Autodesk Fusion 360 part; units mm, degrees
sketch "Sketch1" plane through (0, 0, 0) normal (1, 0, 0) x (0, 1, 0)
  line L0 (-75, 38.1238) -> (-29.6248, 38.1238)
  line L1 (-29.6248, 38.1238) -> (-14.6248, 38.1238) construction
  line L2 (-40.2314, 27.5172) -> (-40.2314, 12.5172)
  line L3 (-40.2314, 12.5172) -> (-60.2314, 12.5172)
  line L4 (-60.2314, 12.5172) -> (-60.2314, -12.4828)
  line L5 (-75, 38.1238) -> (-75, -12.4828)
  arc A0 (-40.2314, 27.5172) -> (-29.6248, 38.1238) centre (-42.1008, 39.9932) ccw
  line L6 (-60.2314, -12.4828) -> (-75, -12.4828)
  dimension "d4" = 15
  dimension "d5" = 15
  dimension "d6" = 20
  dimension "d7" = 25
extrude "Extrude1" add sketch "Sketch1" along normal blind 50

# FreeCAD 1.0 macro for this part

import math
import FreeCAD as App
import Part
import Sketcher
Q = App.Units.Quantity

doc = App.newDocument("Part")
body = doc.addObject("PartDesign::Body", "Body")

# Sketch on YZ plane
sketch1 = body.newObject("Sketcher::SketchObject", "Sketch")
sketch1.AttachmentSupport = (doc.getObject("YZ_Plane"), [""])
sketch1.MapMode = "FlatFace"
sketch1.addGeometry(Part.LineSegment(App.Vector(-30, 38, 0), App.Vector(-75, 38, 0)), False)
sketch1.addGeometry(Part.LineSegment(App.Vector(-75, 38, 0), App.Vector(-75, -12, 0)), False)
sketch1.addGeometry(Part.LineSegment(App.Vector(-75, -12, 0), App.Vector(-60, -12, 0)), False)
sketch1.addGeometry(Part.LineSegment(App.Vector(-60, -12, 0), App.Vector(-60, 13, 0)), False)
sketch1.addGeometry(Part.LineSegment(App.Vector(-60, 13, 0), App.Vector(-40, 13, 0)), False)
sketch1.addGeometry(Part.LineSegment(App.Vector(-40, 13, 0), App.Vector(-40, 28, 0)), False)
sketch1.addGeometry(Part.ArcOfCircle(Part.Circle(App.Vector(-42, 40, 0), App.Vector(0, 0, 1), 13), math.radians(-81), math.radians(-9)), False)
sketch1.addConstraint(Sketcher.Constraint("Coincident", 0, 2, 1, 1))
sketch1.addConstraint(Sketcher.Constraint("Coincident", 1, 2, 2, 1))
sketch1.addConstraint(Sketcher.Constraint("Coincident", 2, 2, 3, 1))
sketch1.addConstraint(Sketcher.Constraint("Coincident", 3, 2, 4, 1))
sketch1.addConstraint(Sketcher.Constraint("Coincident", 4, 2, 5, 1))
sketch1.addConstraint(Sketcher.Constraint("Coincident", 5, 2, 6, 1))
sketch1.addConstraint(Sketcher.Constraint("Coincident", 6, 2, 0, 1))
sketch1.addConstraint(Sketcher.Constraint("Horizontal", 0))
sketch1.addConstraint(Sketcher.Constraint("Vertical", 1))
sketch1.addConstraint(Sketcher.Constraint("Horizontal", 2))
sketch1.addConstraint(Sketcher.Constraint("Vertical", 3))
sketch1.addConstraint(Sketcher.Constraint("Horizontal", 4))
sketch1.addConstraint(Sketcher.Constraint("Vertical", 5))
sketch1.addConstraint(Sketcher.Constraint("DistanceX", 4, 1, 4, 2, Q("20 mm")))
sketch1.addConstraint(Sketcher.Constraint("DistanceY", 3, 1, 3, 2, Q("25 mm")))
sketch1.addConstraint(Sketcher.Constraint("DistanceY", 5, 1, 5, 2, Q("15 mm")))
sketch1.addConstraint(Sketcher.Constraint("DistanceX", 0, 2, -1, 1, Q("75 mm")))
sketch1.addConstraint(Sketcher.Constraint("Radius", 6, Q("12.6153 mm")))
sketch1.addConstraint(Sketcher.Constraint("DistanceX", 0, 2, 0, 1, Q("45.3752 mm")))
sketch1.addConstraint(Sketcher.Constraint("DistanceX", 2, 1, 2, 2, Q("14.7686 mm")))
sketch1.addConstraint(Sketcher.Constraint("DistanceY", 1, 2, 1, 1, Q("50.6066 mm")))
sketch1.addConstraint(Sketcher.Constraint("DistanceY", -1, 1, 6, 3, Q("39.9932 mm")))
pad1 = body.newObject("PartDesign::Pad", "Pad")
pad1.Profile = sketch1
pad1.Length = 50

doc.recompute()
